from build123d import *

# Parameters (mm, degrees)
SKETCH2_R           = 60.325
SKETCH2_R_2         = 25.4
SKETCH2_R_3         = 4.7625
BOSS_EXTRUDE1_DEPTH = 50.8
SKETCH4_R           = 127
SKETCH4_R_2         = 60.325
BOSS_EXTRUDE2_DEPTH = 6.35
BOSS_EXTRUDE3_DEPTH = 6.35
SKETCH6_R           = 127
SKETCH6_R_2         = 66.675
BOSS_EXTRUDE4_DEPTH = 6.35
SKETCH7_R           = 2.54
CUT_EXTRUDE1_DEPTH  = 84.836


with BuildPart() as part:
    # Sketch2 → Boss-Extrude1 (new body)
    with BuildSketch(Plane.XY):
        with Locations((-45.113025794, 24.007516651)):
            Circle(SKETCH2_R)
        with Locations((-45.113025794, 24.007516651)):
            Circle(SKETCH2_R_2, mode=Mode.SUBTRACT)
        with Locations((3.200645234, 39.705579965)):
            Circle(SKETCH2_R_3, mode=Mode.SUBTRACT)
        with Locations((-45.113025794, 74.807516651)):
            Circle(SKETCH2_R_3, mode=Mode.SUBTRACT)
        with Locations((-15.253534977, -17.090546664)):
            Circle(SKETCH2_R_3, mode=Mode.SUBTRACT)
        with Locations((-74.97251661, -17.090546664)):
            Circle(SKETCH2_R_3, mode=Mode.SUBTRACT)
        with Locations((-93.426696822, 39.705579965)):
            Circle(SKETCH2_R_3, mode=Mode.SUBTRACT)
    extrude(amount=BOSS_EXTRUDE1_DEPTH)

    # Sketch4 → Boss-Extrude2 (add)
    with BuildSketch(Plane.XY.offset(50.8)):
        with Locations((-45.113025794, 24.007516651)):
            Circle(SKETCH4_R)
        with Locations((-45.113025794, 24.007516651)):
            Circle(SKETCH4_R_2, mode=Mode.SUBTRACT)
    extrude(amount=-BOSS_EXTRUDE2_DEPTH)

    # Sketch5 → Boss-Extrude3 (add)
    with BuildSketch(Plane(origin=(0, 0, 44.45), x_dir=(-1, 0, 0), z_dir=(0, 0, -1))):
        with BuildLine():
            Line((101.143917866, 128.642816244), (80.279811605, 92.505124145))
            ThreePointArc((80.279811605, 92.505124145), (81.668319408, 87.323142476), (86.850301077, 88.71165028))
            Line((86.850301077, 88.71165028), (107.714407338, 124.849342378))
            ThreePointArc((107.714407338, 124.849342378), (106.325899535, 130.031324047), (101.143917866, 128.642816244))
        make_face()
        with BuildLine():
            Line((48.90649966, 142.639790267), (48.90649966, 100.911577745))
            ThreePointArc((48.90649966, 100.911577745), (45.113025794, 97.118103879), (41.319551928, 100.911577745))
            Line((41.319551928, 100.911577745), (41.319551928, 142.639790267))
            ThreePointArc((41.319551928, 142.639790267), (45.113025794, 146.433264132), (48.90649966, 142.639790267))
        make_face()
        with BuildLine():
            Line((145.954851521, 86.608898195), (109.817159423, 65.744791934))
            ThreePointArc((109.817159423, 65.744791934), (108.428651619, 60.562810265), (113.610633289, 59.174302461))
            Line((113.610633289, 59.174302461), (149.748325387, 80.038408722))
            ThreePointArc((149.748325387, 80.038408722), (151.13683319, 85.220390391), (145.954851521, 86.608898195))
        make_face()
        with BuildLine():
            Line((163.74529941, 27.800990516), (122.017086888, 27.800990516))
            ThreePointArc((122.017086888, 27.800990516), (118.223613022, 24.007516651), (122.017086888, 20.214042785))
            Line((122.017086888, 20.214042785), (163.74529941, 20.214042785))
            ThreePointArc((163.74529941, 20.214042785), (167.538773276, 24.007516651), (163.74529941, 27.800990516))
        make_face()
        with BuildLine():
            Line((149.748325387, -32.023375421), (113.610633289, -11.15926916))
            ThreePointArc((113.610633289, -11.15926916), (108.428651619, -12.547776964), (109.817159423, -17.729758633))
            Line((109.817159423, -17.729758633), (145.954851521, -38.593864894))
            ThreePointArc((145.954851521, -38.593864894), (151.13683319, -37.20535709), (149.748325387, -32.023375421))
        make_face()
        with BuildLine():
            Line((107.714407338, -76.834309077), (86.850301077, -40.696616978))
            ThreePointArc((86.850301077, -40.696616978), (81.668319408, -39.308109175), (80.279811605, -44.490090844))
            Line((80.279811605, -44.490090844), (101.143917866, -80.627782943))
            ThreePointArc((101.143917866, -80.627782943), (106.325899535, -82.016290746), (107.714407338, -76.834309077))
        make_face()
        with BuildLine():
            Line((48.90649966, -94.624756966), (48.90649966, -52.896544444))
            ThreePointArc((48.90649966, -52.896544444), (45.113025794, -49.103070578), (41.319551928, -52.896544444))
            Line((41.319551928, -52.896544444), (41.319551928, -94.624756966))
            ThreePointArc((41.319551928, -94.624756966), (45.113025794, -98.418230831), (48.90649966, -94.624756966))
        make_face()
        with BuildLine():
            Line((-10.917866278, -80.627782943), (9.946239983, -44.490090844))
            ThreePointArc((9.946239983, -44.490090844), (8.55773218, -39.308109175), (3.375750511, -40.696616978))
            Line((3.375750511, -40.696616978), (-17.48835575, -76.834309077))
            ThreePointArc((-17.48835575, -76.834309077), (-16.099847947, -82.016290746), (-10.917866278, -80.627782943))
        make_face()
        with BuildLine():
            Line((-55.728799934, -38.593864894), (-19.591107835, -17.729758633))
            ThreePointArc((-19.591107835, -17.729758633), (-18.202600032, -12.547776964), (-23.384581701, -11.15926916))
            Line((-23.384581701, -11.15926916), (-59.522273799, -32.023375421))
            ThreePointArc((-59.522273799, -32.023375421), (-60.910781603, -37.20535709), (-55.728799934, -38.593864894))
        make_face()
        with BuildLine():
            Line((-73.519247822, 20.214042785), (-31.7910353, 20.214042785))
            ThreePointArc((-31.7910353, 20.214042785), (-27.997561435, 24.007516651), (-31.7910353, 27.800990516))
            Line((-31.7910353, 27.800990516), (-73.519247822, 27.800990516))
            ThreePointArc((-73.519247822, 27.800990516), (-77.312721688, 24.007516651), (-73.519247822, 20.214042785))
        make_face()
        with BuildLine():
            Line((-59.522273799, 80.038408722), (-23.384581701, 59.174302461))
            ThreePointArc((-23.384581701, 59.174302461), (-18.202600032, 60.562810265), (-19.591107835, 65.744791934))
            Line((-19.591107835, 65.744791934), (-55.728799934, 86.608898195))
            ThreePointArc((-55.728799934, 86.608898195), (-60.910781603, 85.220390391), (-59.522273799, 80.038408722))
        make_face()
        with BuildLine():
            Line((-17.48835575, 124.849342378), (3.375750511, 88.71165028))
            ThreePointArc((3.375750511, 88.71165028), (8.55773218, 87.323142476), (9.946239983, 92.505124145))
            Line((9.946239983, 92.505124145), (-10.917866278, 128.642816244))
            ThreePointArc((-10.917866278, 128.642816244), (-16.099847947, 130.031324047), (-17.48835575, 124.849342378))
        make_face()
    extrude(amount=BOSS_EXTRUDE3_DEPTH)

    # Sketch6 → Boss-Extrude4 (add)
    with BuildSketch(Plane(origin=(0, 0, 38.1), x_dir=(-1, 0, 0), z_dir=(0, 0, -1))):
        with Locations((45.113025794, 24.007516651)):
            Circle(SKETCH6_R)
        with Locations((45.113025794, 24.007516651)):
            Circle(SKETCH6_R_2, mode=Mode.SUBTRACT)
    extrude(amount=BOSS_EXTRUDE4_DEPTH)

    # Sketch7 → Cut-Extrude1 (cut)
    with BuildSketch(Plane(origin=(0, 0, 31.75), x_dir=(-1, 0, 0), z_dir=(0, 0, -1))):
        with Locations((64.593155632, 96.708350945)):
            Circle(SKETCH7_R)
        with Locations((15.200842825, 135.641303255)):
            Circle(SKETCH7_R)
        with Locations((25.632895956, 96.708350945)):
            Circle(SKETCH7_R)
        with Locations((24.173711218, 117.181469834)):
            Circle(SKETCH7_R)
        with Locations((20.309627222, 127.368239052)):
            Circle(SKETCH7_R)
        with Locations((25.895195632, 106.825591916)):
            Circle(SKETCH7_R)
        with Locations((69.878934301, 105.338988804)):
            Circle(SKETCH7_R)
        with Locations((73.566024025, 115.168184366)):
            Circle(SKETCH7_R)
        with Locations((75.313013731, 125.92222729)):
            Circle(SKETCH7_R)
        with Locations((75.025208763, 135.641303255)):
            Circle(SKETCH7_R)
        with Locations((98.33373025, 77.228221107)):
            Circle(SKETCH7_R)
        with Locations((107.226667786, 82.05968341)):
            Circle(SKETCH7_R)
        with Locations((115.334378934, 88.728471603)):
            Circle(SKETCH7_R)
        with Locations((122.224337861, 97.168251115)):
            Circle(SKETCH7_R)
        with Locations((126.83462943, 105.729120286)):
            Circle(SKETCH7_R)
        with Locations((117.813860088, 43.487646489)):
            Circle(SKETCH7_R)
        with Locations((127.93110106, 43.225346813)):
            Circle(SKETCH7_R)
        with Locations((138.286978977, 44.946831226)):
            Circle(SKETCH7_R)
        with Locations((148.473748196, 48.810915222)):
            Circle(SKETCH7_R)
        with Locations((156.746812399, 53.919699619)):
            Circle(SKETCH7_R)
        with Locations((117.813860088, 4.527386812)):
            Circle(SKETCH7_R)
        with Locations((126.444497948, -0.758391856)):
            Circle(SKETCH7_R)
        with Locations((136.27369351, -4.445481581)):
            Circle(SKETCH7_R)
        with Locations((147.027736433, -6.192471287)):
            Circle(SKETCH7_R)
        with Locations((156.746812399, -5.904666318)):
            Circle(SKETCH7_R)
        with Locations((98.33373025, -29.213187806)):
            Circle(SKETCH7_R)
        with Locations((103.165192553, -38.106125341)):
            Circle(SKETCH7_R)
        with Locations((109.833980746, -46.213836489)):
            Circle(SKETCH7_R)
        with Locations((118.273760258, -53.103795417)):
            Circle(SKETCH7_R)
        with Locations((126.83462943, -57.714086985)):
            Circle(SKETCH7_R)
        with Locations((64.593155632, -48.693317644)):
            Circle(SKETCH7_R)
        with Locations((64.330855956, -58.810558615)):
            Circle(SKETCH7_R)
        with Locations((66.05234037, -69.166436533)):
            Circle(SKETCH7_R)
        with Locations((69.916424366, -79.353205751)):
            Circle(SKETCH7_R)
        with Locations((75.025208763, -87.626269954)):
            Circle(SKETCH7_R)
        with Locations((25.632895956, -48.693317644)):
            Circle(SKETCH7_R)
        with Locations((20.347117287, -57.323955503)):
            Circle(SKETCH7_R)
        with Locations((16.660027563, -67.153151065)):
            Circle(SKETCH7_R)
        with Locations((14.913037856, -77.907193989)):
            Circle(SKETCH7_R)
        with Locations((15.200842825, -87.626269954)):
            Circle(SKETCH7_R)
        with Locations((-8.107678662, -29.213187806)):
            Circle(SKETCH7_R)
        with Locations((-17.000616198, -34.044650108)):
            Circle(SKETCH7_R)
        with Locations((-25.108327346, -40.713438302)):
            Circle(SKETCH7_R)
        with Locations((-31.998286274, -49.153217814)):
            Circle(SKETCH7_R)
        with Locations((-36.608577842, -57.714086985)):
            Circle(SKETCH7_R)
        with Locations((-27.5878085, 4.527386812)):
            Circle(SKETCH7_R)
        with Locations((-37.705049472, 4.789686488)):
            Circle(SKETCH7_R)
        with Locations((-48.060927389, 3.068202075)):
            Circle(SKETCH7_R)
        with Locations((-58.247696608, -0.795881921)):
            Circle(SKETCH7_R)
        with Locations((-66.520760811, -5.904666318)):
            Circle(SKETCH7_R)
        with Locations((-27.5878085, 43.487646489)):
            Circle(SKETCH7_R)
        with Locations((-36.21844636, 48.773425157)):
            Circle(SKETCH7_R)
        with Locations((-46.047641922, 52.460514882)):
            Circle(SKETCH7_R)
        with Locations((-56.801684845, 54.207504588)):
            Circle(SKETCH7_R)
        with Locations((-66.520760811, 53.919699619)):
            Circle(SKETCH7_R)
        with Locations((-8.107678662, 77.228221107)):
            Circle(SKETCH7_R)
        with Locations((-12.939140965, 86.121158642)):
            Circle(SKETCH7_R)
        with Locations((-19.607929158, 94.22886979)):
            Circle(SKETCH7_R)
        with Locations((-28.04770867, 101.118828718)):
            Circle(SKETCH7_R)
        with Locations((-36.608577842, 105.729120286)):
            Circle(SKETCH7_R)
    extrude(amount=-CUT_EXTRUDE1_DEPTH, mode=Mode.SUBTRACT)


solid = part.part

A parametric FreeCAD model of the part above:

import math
import FreeCAD as App
import Part
import Sketcher

V = App.Vector
Q = App.Units.Quantity

doc = App.newDocument("Part")
body = doc.addObject("PartDesign::Body", "Body")

# Sketch on XY plane
sketch1 = body.newObject("Sketcher::SketchObject", "Sketch")
sketch1.AttachmentSupport = (doc.getObject("XY_Plane"), [""])
sketch1.MapMode = "FlatFace"
sketch1.addGeometry(Part.Circle(V(-45.113026, 24.007517, 0), V(0, 0, 1), 60.325), False)
sketch1.addGeometry(Part.Circle(V(-74.972517, -17.090547, 0), V(0, 0, 1), 4.7625), False)
sketch1.addGeometry(Part.Circle(V(-45.113026, 24.007517, 0), V(0, 0, 1), 25.4), False)
sketch1.addGeometry(Part.Circle(V(-15.253535, -17.090547, 0), V(0, 0, 1), 4.7625), False)
sketch1.addGeometry(Part.Circle(V(-93.426697, 39.70558, 0), V(0, 0, 1), 4.7625), False)
sketch1.addGeometry(Part.Circle(V(-45.113026, 74.807517, 0), V(0, 0, 1), 4.7625), False)
sketch1.addGeometry(Part.Circle(V(3.200645, 39.70558, 0), V(0, 0, 1), 4.7625), False)
sketch1.addConstraint(Sketcher.Constraint("Coincident", 2, 3, 0, 3))
sketch1.addConstraint(Sketcher.Constraint("Equal", 1, 3))
sketch1.addConstraint(Sketcher.Constraint("Equal", 3, 4))
sketch1.addConstraint(Sketcher.Constraint("Equal", 4, 5))
sketch1.addConstraint(Sketcher.Constraint("Equal", 5, 6))
sketch1.addConstraint(Sketcher.Constraint("Horizontal", 1, 3, 3, 3))
sketch1.addConstraint(Sketcher.Constraint("Horizontal", 4, 3, 6, 3))
sketch1.addConstraint(Sketcher.Constraint("Vertical", 2, 3, 5, 3))
sketch1.addConstraint(Sketcher.Constraint("Diameter", 2, Q("2 in")))
sketch1.addConstraint(Sketcher.Constraint("Diameter", 0, Q("4.75 in")))
sketch1.addConstraint(Sketcher.Constraint("Diameter", 1, Q("0.375 in")))
sketch1.addConstraint(Sketcher.Constraint("DistanceY", 0, 3, 5, 3, Q("2 in")))
sketch1.addConstraint(Sketcher.Constraint("DistanceY", -1, 1, 4, 3, 39.70558))
sketch1.addConstraint(Sketcher.Constraint("DistanceX", 1, 3, 0, 3, 29.859491))
sketch1.addConstraint(Sketcher.Constraint("DistanceX", 0, 3, 3, 3, 29.859491))
sketch1.addConstraint(Sketcher.Constraint("DistanceX", 4, 3, 0, 3, 48.313671))
sketch1.addConstraint(Sketcher.Constraint("DistanceX", 0, 3, 6, 3, 48.313671))
sketch1.addConstraint(Sketcher.Constraint("DistanceX", 0, 3, -1, 1, 45.113026))
sketch1.addConstraint(Sketcher.Constraint("DistanceY", -1, 1, 0, 3, 24.007517))
sketch1.addConstraint(Sketcher.Constraint("DistanceY", 1, 3, -1, 1, 17.090547))
pad1 = body.newObject("PartDesign::Pad", "Pad")
pad1.Profile = sketch1
pad1.Length = Q("2 in")

# Sketch on XY plane
sketch2 = body.newObject("Sketcher::SketchObject", "Sketch001")
sketch2.AttachmentSupport = (doc.getObject("XY_Plane"), [""])
sketch2.MapMode = "FlatFace"
sketch2.AttachmentOffset = App.Placement(V(0, 0, 2 * 25.4), App.Rotation())
sketch2.addGeometry(Part.Circle(V(-45.113026, 24.007517, 0), V(0, 0, 1), 127), False)
sketch2.addGeometry(Part.Circle(V(-45.113026, 24.007517, 0), V(0, 0, 1), 60.325), False)
sketch2.addConstraint(Sketcher.Constraint("Coincident", 1, 3, 0, 3))
sketch2.addConstraint(Sketcher.Constraint("Diameter", 0, Q("10 in")))
sketch2.addConstraint(Sketcher.Constraint("Diameter", 1, Q("4.75 in")))
sketch2.addConstraint(Sketcher.Constraint("DistanceX", 0, 3, -1, 1, 45.113026))
sketch2.addConstraint(Sketcher.Constraint("DistanceY", -1, 1, 0, 3, 24.007517))
pad2 = body.newObject("PartDesign::Pad", "Pad001")
pad2.Profile = sketch2
pad2.Length = Q("0.25 in")
pad2.Reversed = True

# Sketch on XY plane
sketch3 = body.newObject("Sketcher::SketchObject", "Sketch002")
sketch3.AttachmentSupport = (doc.getObject("XY_Plane"), [""])
sketch3.MapMode = "FlatFace"
sketch3.AttachmentOffset = App.Placement(V(0, 0, 1.75 * 25.4), App.Rotation())
sketch3.addGeometry(Part.LineSegment(V(-101.143918, 128.642816, 0), V(-80.279812, 92.505124, 0)), False)
sketch3.addGeometry(Part.ArcOfCircle(Part.Circle(V(-83.565056, 90.608387, 0), V(0, 0, 1), 3.793474), math.radians(-150), math.radians(30)), False)
sketch3.addGeometry(Part.LineSegment(V(-86.850301, 88.71165, 0), V(-107.714407, 124.849342, 0)), False)
sketch3.addGeometry(Part.ArcOfCircle(Part.Circle(V(-104.429163, 126.746079, 0), V(0, 0, 1), 3.793474), math.radians(30), math.radians(210)), False)
sketch3.addGeometry(Part.LineSegment(V(-48.9065, 100.911578, 0), V(-48.9065, 142.63979, 0)), False)
sketch3.addGeometry(Part.ArcOfCircle(Part.Circle(V(-45.113026, 142.63979, 0), V(0, 0, 1), 3.793474), math.radians(0), math.radians(180)), False)
sketch3.addGeometry(Part.LineSegment(V(-41.319552, 142.63979, 0), V(-41.319552, 100.911578, 0)), False)
sketch3.addGeometry(Part.ArcOfCircle(Part.Circle(V(-45.113026, 100.911578, 0), V(0, 0, 1), 3.793474), math.radians(180), math.radians(360)), False)
sketch3.addGeometry(Part.LineSegment(V(-145.954852, 86.608898, 0), V(-109.817159, 65.744792, 0)), False)
sketch3.addGeometry(Part.ArcOfCircle(Part.Circle(V(-111.713896, 62.459547, 0), V(0, 0, 1), 3.793474), math.radians(-120), math.radians(60)), False)
sketch3.addGeometry(Part.LineSegment(V(-113.610633, 59.174302, 0), V(-149.748325, 80.038409, 0)), False)
sketch3.addGeometry(Part.ArcOfCircle(Part.Circle(V(-147.851588, 83.323653, 0), V(0, 0, 1), 3.793474), math.radians(60), math.radians(240)), False)
sketch3.addGeometry(Part.LineSegment(V(-163.745299, 27.800991, 0), V(-122.017087, 27.800991, 0)), False)
sketch3.addGeometry(Part.ArcOfCircle(Part.Circle(V(-122.017087, 24.007517, 0), V(0, 0, 1), 3.793474), math.radians(-90), math.radians(90)), False)
sketch3.addGeometry(Part.LineSegment(V(-122.017087, 20.214043, 0), V(-163.745299, 20.214043, 0)), False)
sketch3.addGeometry(Part.ArcOfCircle(Part.Circle(V(-163.745299, 24.007517, 0), V(0, 0, 1), 3.793474), math.radians(90), math.radians(270)), False)
sketch3.addGeometry(Part.LineSegment(V(-149.748325, -32.023375, 0), V(-113.610633, -11.159269, 0)), False)
sketch3.addGeometry(Part.ArcOfCircle(Part.Circle(V(-111.713896, -14.444514, 0), V(0, 0, 1), 3.793474), math.radians(-60), math.radians(120)), False)
sketch3.addGeometry(Part.LineSegment(V(-109.817159, -17.729759, 0), V(-145.954852, -38.593865, 0)), False)
sketch3.addGeometry(Part.ArcOfCircle(Part.Circle(V(-147.851588, -35.30862, 0), V(0, 0, 1), 3.793474), math.radians(120), math.radians(300)), False)
sketch3.addGeometry(Part.LineSegment(V(-107.714407, -76.834309, 0), V(-86.850301, -40.696617, 0)), False)
sketch3.addGeometry(Part.ArcOfCircle(Part.Circle(V(-83.565056, -42.593354, 0), V(0, 0, 1), 3.793474), math.radians(-30), math.radians(150)), False)
sketch3.addGeometry(Part.LineSegment(V(-80.279812, -44.490091, 0), V(-101.143918, -80.627783, 0)), False)
sketch3.addGeometry(Part.ArcOfCircle(Part.Circle(V(-104.429163, -78.731046, 0), V(0, 0, 1), 3.793474), math.radians(150), math.radians(330)), False)
sketch3.addGeometry(Part.LineSegment(V(-48.9065, -94.624757, 0), V(-48.9065, -52.896544, 0)), False)
sketch3.addGeometry(Part.ArcOfCircle(Part.Circle(V(-45.113026, -52.896544, 0), V(0, 0, 1), 3.793474), math.radians(0), math.radians(180)), False)
sketch3.addGeometry(Part.LineSegment(V(-41.319552, -52.896544, 0), V(-41.319552, -94.624757, 0)), False)
sketch3.addGeometry(Part.ArcOfCircle(Part.Circle(V(-45.113026, -94.624757, 0), V(0, 0, 1), 3.793474), math.radians(-180), math.radians(0)), False)
sketch3.addGeometry(Part.LineSegment(V(10.917866, -80.627783, 0), V(-9.94624, -44.490091, 0)), False)
sketch3.addGeometry(Part.ArcOfCircle(Part.Circle(V(-6.660995, -42.593354, 0), V(0, 0, 1), 3.793474), math.radians(30), math.radians(210)), False)
sketch3.addGeometry(Part.LineSegment(V(-3.375751, -40.696617, 0), V(17.488356, -76.834309, 0)), False)
sketch3.addGeometry(Part.ArcOfCircle(Part.Circle(V(14.203111, -78.731046, 0), V(0, 0, 1), 3.793474), math.radians(-150), math.radians(30)), False)
sketch3.addGeometry(Part.LineSegment(V(55.7288, -38.593865, 0), V(19.591108, -17.729759, 0)), False)
sketch3.addGeometry(Part.ArcOfCircle(Part.Circle(V(21.487845, -14.444514, 0), V(0, 0, 1), 3.793474), math.radians(60), math.radians(240)), False)
sketch3.addGeometry(Part.LineSegment(V(23.384582, -11.159269, 0), V(59.522274, -32.023375, 0)), False)
sketch3.addGeometry(Part.ArcOfCircle(Part.Circle(V(57.625537, -35.30862, 0), V(0, 0, 1), 3.793474), math.radians(-120), math.radians(60)), False)
sketch3.addGeometry(Part.LineSegment(V(73.519248, 20.214043, 0), V(31.791035, 20.214043, 0)), False)
sketch3.addGeometry(Part.ArcOfCircle(Part.Circle(V(31.791035, 24.007517, 0), V(0, 0, 1), 3.793474), math.radians(90), math.radians(270)), False)
sketch3.addGeometry(Part.LineSegment(V(31.791035, 27.800991, 0), V(73.519248, 27.800991, 0)), False)
sketch3.addGeometry(Part.ArcOfCircle(Part.Circle(V(73.519248, 24.007517, 0), V(0, 0, 1), 3.793474), math.radians(-90), math.radians(90)), False)
sketch3.addGeometry(Part.LineSegment(V(59.522274, 80.038409, 0), V(23.384582, 59.174302, 0)), False)
sketch3.addGeometry(Part.ArcOfCircle(Part.Circle(V(21.487845, 62.459547, 0), V(0, 0, 1), 3.793474), math.radians(120), math.radians(300)), False)
sketch3.addGeometry(Part.LineSegment(V(19.591108, 65.744792, 0), V(55.7288, 86.608898, 0)), False)
sketch3.addGeometry(Part.ArcOfCircle(Part.Circle(V(57.625537, 83.323653, 0), V(0, 0, 1), 3.793474), math.radians(-60), math.radians(120)), False)
sketch3.addGeometry(Part.LineSegment(V(17.488356, 124.849342, 0), V(-3.375751, 88.71165, 0)), False)
sketch3.addGeometry(Part.ArcOfCircle(Part.Circle(V(-6.660995, 90.608387, 0), V(0, 0, 1), 3.793474), math.radians(150), math.radians(330)), False)
sketch3.addGeometry(Part.LineSegment(V(-9.94624, 92.505124, 0), V(10.917866, 128.642816, 0)), False)
sketch3.addGeometry(Part.ArcOfCircle(Part.Circle(V(14.203111, 126.746079, 0), V(0, 0, 1), 3.793474), math.radians(-30), math.radians(150)), False)
sketch3.addConstraint(Sketcher.Constraint("Tangent", 0, 2, 1, 2))
sketch3.addConstraint(Sketcher.Constraint("Tangent", 1, 1, 2, 1))
sketch3.addConstraint(Sketcher.Constraint("Tangent", 2, 2, 3, 2))
sketch3.addConstraint(Sketcher.Constraint("Tangent", 3, 1, 0, 1))
sketch3.addConstraint(Sketcher.Constraint("Tangent", 4, 2, 5, 2))
sketch3.addConstraint(Sketcher.Constraint("Tangent", 5, 1, 6, 1))
sketch3.addConstraint(Sketcher.Constraint("Tangent", 6, 2, 7, 2))
sketch3.addConstraint(Sketcher.Constraint("Tangent", 7, 1, 4, 1))
sketch3.addConstraint(Sketcher.Constraint("Tangent", 8, 2, 9, 2))
sketch3.addConstraint(Sketcher.Constraint("Tangent", 9, 1, 10, 1))
sketch3.addConstraint(Sketcher.Constraint("Tangent", 10, 2, 11, 2))
sketch3.addConstraint(Sketcher.Constraint("Tangent", 11, 1, 8, 1))
sketch3.addConstraint(Sketcher.Constraint("Tangent", 12, 2, 13, 2))
sketch3.addConstraint(Sketcher.Constraint("Tangent", 13, 1, 14, 1))
sketch3.addConstraint(Sketcher.Constraint("Tangent", 14, 2, 15, 2))
sketch3.addConstraint(Sketcher.Constraint("Tangent", 15, 1, 12, 1))
sketch3.addConstraint(Sketcher.Constraint("Tangent", 16, 2, 17, 2))
sketch3.addConstraint(Sketcher.Constraint("Tangent", 17, 1, 18, 1))
sketch3.addConstraint(Sketcher.Constraint("Tangent", 18, 2, 19, 2))
sketch3.addConstraint(Sketcher.Constraint("Tangent", 19, 1, 16, 1))
sketch3.addConstraint(Sketcher.Constraint("Tangent", 20, 2, 21, 2))
sketch3.addConstraint(Sketcher.Constraint("Tangent", 21, 1, 22, 1))
sketch3.addConstraint(Sketcher.Constraint("Tangent", 22, 2, 23, 2))
sketch3.addConstraint(Sketcher.Constraint("Tangent", 23, 1, 20, 1))
sketch3.addConstraint(Sketcher.Constraint("Tangent", 24, 2, 25, 2))
sketch3.addConstraint(Sketcher.Constraint("Tangent", 25, 1, 26, 1))
sketch3.addConstraint(Sketcher.Constraint("Tangent", 26, 2, 27, 2))
sketch3.addConstraint(Sketcher.Constraint("Tangent", 27, 1, 24, 1))
sketch3.addConstraint(Sketcher.Constraint("Tangent", 28, 2, 29, 2))
sketch3.addConstraint(Sketcher.Constraint("Tangent", 29, 1, 30, 1))
sketch3.addConstraint(Sketcher.Constraint("Tangent", 30, 2, 31, 2))
sketch3.addConstraint(Sketcher.Constraint("Tangent", 31, 1, 28, 1))
sketch3.addConstraint(Sketcher.Constraint("Tangent", 32, 2, 33, 2))
sketch3.addConstraint(Sketcher.Constraint("Tangent", 33, 1, 34, 1))
sketch3.addConstraint(Sketcher.Constraint("Tangent", 34, 2, 35, 2))
sketch3.addConstraint(Sketcher.Constraint("Tangent", 35, 1, 32, 1))
sketch3.addConstraint(Sketcher.Constraint("Tangent", 36, 2, 37, 2))
sketch3.addConstraint(Sketcher.Constraint("Tangent", 37, 1, 38, 1))
sketch3.addConstraint(Sketcher.Constraint("Tangent", 38, 2, 39, 2))
sketch3.addConstraint(Sketcher.Constraint("Tangent", 39, 1, 36, 1))
sketch3.addConstraint(Sketcher.Constraint("Tangent", 40, 2, 41, 2))
sketch3.addConstraint(Sketcher.Constraint("Tangent", 41, 1, 42, 1))
sketch3.addConstraint(Sketcher.Constraint("Tangent", 42, 2, 43, 2))
sketch3.addConstraint(Sketcher.Constraint("Tangent", 43, 1, 40, 1))
sketch3.addConstraint(Sketcher.Constraint("Tangent", 44, 2, 45, 2))
sketch3.addConstraint(Sketcher.Constraint("Tangent", 45, 1, 46, 1))
sketch3.addConstraint(Sketcher.Constraint("Tangent", 46, 2, 47, 2))
sketch3.addConstraint(Sketcher.Constraint("Tangent", 47, 1, 44, 1))
sketch3.addConstraint(Sketcher.Constraint("Vertical", 4))
sketch3.addConstraint(Sketcher.Constraint("Vertical", 6))
sketch3.addConstraint(Sketcher.Constraint("Horizontal", 12))
sketch3.addConstraint(Sketcher.Constraint("Horizontal", 14))
sketch3.addConstraint(Sketcher.Constraint("Vertical", 24))
sketch3.addConstraint(Sketcher.Constraint("Vertical", 26))
sketch3.addConstraint(Sketcher.Constraint("Horizontal", 36))
sketch3.addConstraint(Sketcher.Constraint("Horizontal", 38))
sketch3.addConstraint(Sketcher.Constraint("Equal", 1, 3))
sketch3.addConstraint(Sketcher.Constraint("Equal", 3, 5))
sketch3.addConstraint(Sketcher.Constraint("Equal", 7, 9))
sketch3.addConstraint(Sketcher.Constraint("Equal", 9, 11))
sketch3.addConstraint(Sketcher.Constraint("Equal", 11, 13))
sketch3.addConstraint(Sketcher.Constraint("Equal", 15, 17))
sketch3.addConstraint(Sketcher.Constraint("Equal", 17, 19))
sketch3.addConstraint(Sketcher.Constraint("Equal", 19, 21))
sketch3.addConstraint(Sketcher.Constraint("Equal", 21, 23))
sketch3.addConstraint(Sketcher.Constraint("Equal", 23, 25))
sketch3.addConstraint(Sketcher.Constraint("Equal", 27, 29))
sketch3.addConstraint(Sketcher.Constraint("Equal", 29, 31))
sketch3.addConstraint(Sketcher.Constraint("Equal", 31, 33))
sketch3.addConstraint(Sketcher.Constraint("Equal", 33, 35))
sketch3.addConstraint(Sketcher.Constraint("Equal", 35, 37))
sketch3.addConstraint(Sketcher.Constraint("Equal", 39, 41))
sketch3.addConstraint(Sketcher.Constraint("Equal", 41, 43))
sketch3.addConstraint(Sketcher.Constraint("Equal", 43, 45))
sketch3.addConstraint(Sketcher.Constraint("Equal", 45, 47))
sketch3.addConstraint(Sketcher.Constraint("Perpendicular", 2, 16))
sketch3.addConstraint(Sketcher.Constraint("Perpendicular", 10, 20))
sketch3.addConstraint(Sketcher.Constraint("Perpendicular", 18, 28))
sketch3.addConstraint(Sketcher.Constraint("Perpendicular", 22, 32))
sketch3.addConstraint(Sketcher.Constraint("Perpendicular", 30, 40))
sketch3.addConstraint(Sketcher.Constraint("Perpendicular", 34, 44))
sketch3.addConstraint(Sketcher.Constraint("Horizontal", 21, 3, 29, 3))
sketch3.addConstraint(Sketcher.Constraint("Horizontal", 23, 3, 31, 3))
sketch3.addConstraint(Sketcher.Constraint("Horizontal", 17, 3, 33, 3))
sketch3.addConstraint(Sketcher.Constraint("Horizontal", 19, 3, 35, 3))
sketch3.addConstraint(Sketcher.Constraint("Horizontal", 15, 3, 37, 3))
sketch3.addConstraint(Sketcher.Constraint("Horizontal", 9, 3, 41, 3))
sketch3.addConstraint(Sketcher.Constraint("Horizontal", 11, 3, 43, 3))
sketch3.addConstraint(Sketcher.Constraint("Horizontal", 1, 3, 45, 3))
sketch3.addConstraint(Sketcher.Constraint("Horizontal", 3, 3, 47, 3))
sketch3.addConstraint(Sketcher.Constraint("Horizontal", 21, 1, 28, 2))
sketch3.addConstraint(Sketcher.Constraint("Vertical", 9, 3, 17, 3))
sketch3.addConstraint(Sketcher.Constraint("Vertical", 11, 3, 19, 3))
sketch3.addConstraint(Sketcher.Constraint("Vertical", 1, 3, 21, 3))
sketch3.addConstraint(Sketcher.Constraint("Vertical", 3, 3, 23, 3))
sketch3.addConstraint(Sketcher.Constraint("Vertical", 7, 3, 25, 3))
sketch3.addConstraint(Sketcher.Constraint("Vertical", 33, 3, 41, 3))
sketch3.addConstraint(Sketcher.Constraint("Vertical", 29, 3, 45, 3))
sketch3.addConstraint(Sketcher.Constraint("Equal", 14, 36))
sketch3.addConstraint(Sketcher.Constraint("Equal", 38, 4))
sketch3.addConstraint(Sketcher.Constraint("Equal", 6, 24))
sketch3.addConstraint(Sketcher.Constraint("Equal", 2, 8))
sketch3.addConstraint(Sketcher.Constraint("Angle", 0, Q("-60 deg")))
sketch3.addConstraint(Sketcher.Constraint("Radius", 1, 3.793474))
sketch3.addConstraint(Sketcher.Constraint("DistanceX", 15, 3, -1, 1, 163.745299))
sketch3.addConstraint(Sketcher.Constraint("DistanceX", 1, 1, -1, 1, 86.850301))
sketch3.addConstraint(Sketcher.Constraint("DistanceX", 4, 2, -1, 1, 48.9065))
sketch3.addConstraint(Sketcher.Constraint("DistanceY", -1, 1, 11, 1, 86.608898))
sketch3.addConstraint(Sketcher.Constraint("DistanceX", -1, 1, 35, 1, 55.7288))
sketch3.addConstraint(Sketcher.Constraint("DistanceX", 12, 1, 12, 2, 41.728213))
sketch3.addConstraint(Sketcher.Constraint("DistanceY", -1, 1, 3, 3, 126.746079))
sketch3.addConstraint(Sketcher.Constraint("DistanceY", -1, 1, 5, 3, 142.63979))
sketch3.addConstraint(Sketcher.Constraint("DistanceX", 11, 3, -1, 1, 147.851588))
sketch3.addConstraint(Sketcher.Constraint("DistanceY", 19, 3, -1, 1, 35.30862))
sketch3.addConstraint(Sketcher.Constraint("DistanceX", -1, 1, 31, 3, 14.203111))
sketch3.addConstraint(Sketcher.Constraint("DistanceY", -1, 1, 1, 1, 88.71165))
sketch3.addConstraint(Sketcher.Constraint("DistanceY", -1, 1, 12, 2, 27.800991))
sketch3.addConstraint(Sketcher.Constraint("DistanceY", 21, 1, -1, 1, 44.490091))
sketch3.addConstraint(Sketcher.Constraint("DistanceY", 25, 3, -1, 1, 52.896544))
sketch3.addConstraint(Sketcher.Constraint("DistanceX", -1, 1, 37, 3, 31.791035))
pad3 = body.newObject("PartDesign::Pad", "Pad002")
pad3.Profile = sketch3
pad3.Length = Q("0.25 in")
pad3.Reversed = True

# Sketch on XY plane
sketch4 = body.newObject("Sketcher::SketchObject", "Sketch003")
sketch4.AttachmentSupport = (doc.getObject("XY_Plane"), [""])
sketch4.MapMode = "FlatFace"
sketch4.AttachmentOffset = App.Placement(V(0, 0, 1.5 * 25.4), App.Rotation())
sketch4.addGeometry(Part.Circle(V(-45.113026, 24.007517, 0), V(0, 0, 1), 127), False)
sketch4.addGeometry(Part.Circle(V(-45.113026, 24.007517, 0), V(0, 0, 1), 66.675), False)
sketch4.addConstraint(Sketcher.Constraint("Coincident", 1, 3, 0, 3))
sketch4.addConstraint(Sketcher.Constraint("Diameter", 0, Q("10 in")))
sketch4.addConstraint(Sketcher.Constraint("Diameter", 1, Q("5.25 in")))
sketch4.addConstraint(Sketcher.Constraint("DistanceX", 0, 3, -1, 1, 45.113026))
sketch4.addConstraint(Sketcher.Constraint("DistanceY", -1, 1, 0, 3, 24.007517))
pad4 = body.newObject("PartDesign::Pad", "Pad003")
pad4.Profile = sketch4
pad4.Length = Q("0.25 in")
pad4.Reversed = True

# Sketch on XY plane
sketch5 = body.newObject("Sketcher::SketchObject", "Sketch004")
sketch5.AttachmentSupport = (doc.getObject("XY_Plane"), [""])
sketch5.MapMode = "FlatFace"
sketch5.AttachmentOffset = App.Placement(V(0, 0, 1.25 * 25.4), App.Rotation())
sketch5.addGeometry(Part.Circle(V(-64.593156, 96.708351, 0), V(0, 0, 1), 2.54), False)
sketch5.addGeometry(Part.Circle(V(-15.200843, 135.641303, 0), V(0, 0, 1), 2.54), False)
sketch5.addGeometry(Part.Circle(V(-25.632896, 96.708351, 0), V(0, 0, 1), 2.54), False)
sketch5.addGeometry(Part.Circle(V(-24.173711, 117.18147, 0), V(0, 0, 1), 2.54), False)
sketch5.addGeometry(Part.Circle(V(-20.309627, 127.368239, 0), V(0, 0, 1), 2.54), False)
sketch5.addGeometry(Part.Circle(V(-25.895196, 106.825592, 0), V(0, 0, 1), 2.54), False)
sketch5.addGeometry(Part.Circle(V(-69.878934, 105.338989, 0), V(0, 0, 1), 2.54), False)
sketch5.addGeometry(Part.Circle(V(-73.566024, 115.168184, 0), V(0, 0, 1), 2.54), False)
sketch5.addGeometry(Part.Circle(V(-75.313014, 125.922227, 0), V(0, 0, 1), 2.54), False)
sketch5.addGeometry(Part.Circle(V(-75.025209, 135.641303, 0), V(0, 0, 1), 2.54), False)
sketch5.addGeometry(Part.Circle(V(-98.33373, 77.228221, 0), V(0, 0, 1), 2.54), False)
sketch5.addGeometry(Part.Circle(V(-107.226668, 82.059683, 0), V(0, 0, 1), 2.54), False)
sketch5.addGeometry(Part.Circle(V(-115.334379, 88.728472, 0), V(0, 0, 1), 2.54), False)
sketch5.addGeometry(Part.Circle(V(-122.224338, 97.168251, 0), V(0, 0, 1), 2.54), False)
sketch5.addGeometry(Part.Circle(V(-126.834629, 105.72912, 0), V(0, 0, 1), 2.54), False)
sketch5.addGeometry(Part.Circle(V(-117.81386, 43.487646, 0), V(0, 0, 1), 2.54), False)
sketch5.addGeometry(Part.Circle(V(-127.931101, 43.225347, 0), V(0, 0, 1), 2.54), False)
sketch5.addGeometry(Part.Circle(V(-138.286979, 44.946831, 0), V(0, 0, 1), 2.54), False)
sketch5.addGeometry(Part.Circle(V(-148.473748, 48.810915, 0), V(0, 0, 1), 2.54), False)
sketch5.addGeometry(Part.Circle(V(-156.746812, 53.9197, 0), V(0, 0, 1), 2.54), False)
sketch5.addGeometry(Part.Circle(V(-117.81386, 4.527387, 0), V(0, 0, 1), 2.54), False)
sketch5.addGeometry(Part.Circle(V(-126.444498, -0.758392, 0), V(0, 0, 1), 2.54), False)
sketch5.addGeometry(Part.Circle(V(-136.273694, -4.445482, 0), V(0, 0, 1), 2.54), False)
sketch5.addGeometry(Part.Circle(V(-147.027736, -6.192471, 0), V(0, 0, 1), 2.54), False)
sketch5.addGeometry(Part.Circle(V(-156.746812, -5.904666, 0), V(0, 0, 1), 2.54), False)
sketch5.addGeometry(Part.Circle(V(-98.33373, -29.213188, 0), V(0, 0, 1), 2.54), False)
sketch5.addGeometry(Part.Circle(V(-103.165193, -38.106125, 0), V(0, 0, 1), 2.54), False)
sketch5.addGeometry(Part.Circle(V(-109.833981, -46.213836, 0), V(0, 0, 1), 2.54), False)
sketch5.addGeometry(Part.Circle(V(-118.27376, -53.103795, 0), V(0, 0, 1), 2.54), False)
sketch5.addGeometry(Part.Circle(V(-126.834629, -57.714087, 0), V(0, 0, 1), 2.54), False)
sketch5.addGeometry(Part.Circle(V(-64.593156, -48.693318, 0), V(0, 0, 1), 2.54), False)
sketch5.addGeometry(Part.Circle(V(-64.330856, -58.810559, 0), V(0, 0, 1), 2.54), False)
sketch5.addGeometry(Part.Circle(V(-66.05234, -69.166437, 0), V(0, 0, 1), 2.54), False)
sketch5.addGeometry(Part.Circle(V(-69.916424, -79.353206, 0), V(0, 0, 1), 2.54), False)
sketch5.addGeometry(Part.Circle(V(-75.025209, -87.62627, 0), V(0, 0, 1), 2.54), False)
sketch5.addGeometry(Part.Circle(V(-25.632896, -48.693318, 0), V(0, 0, 1), 2.54), False)
sketch5.addGeometry(Part.Circle(V(-20.347117, -57.323956, 0), V(0, 0, 1), 2.54), False)
sketch5.addGeometry(Part.Circle(V(-16.660028, -67.153151, 0), V(0, 0, 1), 2.54), False)
sketch5.addGeometry(Part.Circle(V(-14.913038, -77.907194, 0), V(0, 0, 1), 2.54), False)
sketch5.addGeometry(Part.Circle(V(-15.200843, -87.62627, 0), V(0, 0, 1), 2.54), False)
sketch5.addGeometry(Part.Circle(V(8.107679, -29.213188, 0), V(0, 0, 1), 2.54), False)
sketch5.addGeometry(Part.Circle(V(17.000616, -34.04465, 0), V(0, 0, 1), 2.54), False)
sketch5.addGeometry(Part.Circle(V(25.108327, -40.713438, 0), V(0, 0, 1), 2.54), False)
sketch5.addGeometry(Part.Circle(V(31.998286, -49.153218, 0), V(0, 0, 1), 2.54), False)
sketch5.addGeometry(Part.Circle(V(36.608578, -57.714087, 0), V(0, 0, 1), 2.54), False)
sketch5.addGeometry(Part.Circle(V(27.587809, 4.527387, 0), V(0, 0, 1), 2.54), False)
sketch5.addGeometry(Part.Circle(V(37.705049, 4.789686, 0), V(0, 0, 1), 2.54), False)
sketch5.addGeometry(Part.Circle(V(48.060927, 3.068202, 0), V(0, 0, 1), 2.54), False)
sketch5.addGeometry(Part.Circle(V(58.247697, -0.795882, 0), V(0, 0, 1), 2.54), False)
sketch5.addGeometry(Part.Circle(V(66.520761, -5.904666, 0), V(0, 0, 1), 2.54), False)
sketch5.addGeometry(Part.Circle(V(27.587809, 43.487646, 0), V(0, 0, 1), 2.54), False)
sketch5.addGeometry(Part.Circle(V(36.218446, 48.773425, 0), V(0, 0, 1), 2.54), False)
sketch5.addGeometry(Part.Circle(V(46.047642, 52.460515, 0), V(0, 0, 1), 2.54), False)
sketch5.addGeometry(Part.Circle(V(56.801685, 54.207505, 0), V(0, 0, 1), 2.54), False)
sketch5.addGeometry(Part.Circle(V(66.520761, 53.9197, 0), V(0, 0, 1), 2.54), False)
sketch5.addGeometry(Part.Circle(V(8.107679, 77.228221, 0), V(0, 0, 1), 2.54), False)
sketch5.addGeometry(Part.Circle(V(12.939141, 86.121159, 0), V(0, 0, 1), 2.54), False)
sketch5.addGeometry(Part.Circle(V(19.607929, 94.22887, 0), V(0, 0, 1), 2.54), False)
sketch5.addGeometry(Part.Circle(V(28.047709, 101.118829, 0), V(0, 0, 1), 2.54), False)
sketch5.addGeometry(Part.Circle(V(36.608578, 105.72912, 0), V(0, 0, 1), 2.54), False)
sketch5.addConstraint(Sketcher.Constraint("Equal", 0, 1))
sketch5.addConstraint(Sketcher.Constraint("Equal", 1, 2))
sketch5.addConstraint(Sketcher.Constraint("Equal", 2, 3))
sketch5.addConstraint(Sketcher.Constraint("Equal", 3, 4))
sketch5.addConstraint(Sketcher.Constraint("Equal", 4, 5))
sketch5.addConstraint(Sketcher.Constraint("Equal", 5, 6))
sketch5.addConstraint(Sketcher.Constraint("Equal", 6, 7))
sketch5.addConstraint(Sketcher.Constraint("Equal", 7, 8))
sketch5.addConstraint(Sketcher.Constraint("Equal", 8, 9))
sketch5.addConstraint(Sketcher.Constraint("Equal", 9, 10))
sketch5.addConstraint(Sketcher.Constraint("Equal", 10, 11))
sketch5.addConstraint(Sketcher.Constraint("Equal", 11, 12))
sketch5.addConstraint(Sketcher.Constraint("Equal", 12, 13))
sketch5.addConstraint(Sketcher.Constraint("Equal", 13, 14))
sketch5.addConstraint(Sketcher.Constraint("Equal", 14, 15))
sketch5.addConstraint(Sketcher.Constraint("Equal", 15, 16))
sketch5.addConstraint(Sketcher.Constraint("Equal", 16, 17))
sketch5.addConstraint(Sketcher.Constraint("Equal", 17, 18))
sketch5.addConstraint(Sketcher.Constraint("Equal", 18, 19))
sketch5.addConstraint(Sketcher.Constraint("Equal", 19, 20))
sketch5.addConstraint(Sketcher.Constraint("Equal", 20, 21))
sketch5.addConstraint(Sketcher.Constraint("Equal", 21, 22))
sketch5.addConstraint(Sketcher.Constraint("Equal", 22, 23))
sketch5.addConstraint(Sketcher.Constraint("Equal", 23, 24))
sketch5.addConstraint(Sketcher.Constraint("Equal", 24, 25))
sketch5.addConstraint(Sketcher.Constraint("Equal", 25, 26))
sketch5.addConstraint(Sketcher.Constraint("Equal", 26, 27))
sketch5.addConstraint(Sketcher.Constraint("Equal", 27, 28))
sketch5.addConstraint(Sketcher.Constraint("Equal", 28, 29))
sketch5.addConstraint(Sketcher.Constraint("Equal", 29, 30))
sketch5.addConstraint(Sketcher.Constraint("Equal", 30, 31))
sketch5.addConstraint(Sketcher.Constraint("Equal", 31, 32))
sketch5.addConstraint(Sketcher.Constraint("Equal", 32, 33))
sketch5.addConstraint(Sketcher.Constraint("Equal", 33, 34))
sketch5.addConstraint(Sketcher.Constraint("Equal", 34, 35))
sketch5.addConstraint(Sketcher.Constraint("Equal", 35, 36))
sketch5.addConstraint(Sketcher.Constraint("Equal", 36, 37))
sketch5.addConstraint(Sketcher.Constraint("Equal", 37, 38))
sketch5.addConstraint(Sketcher.Constraint("Equal", 38, 39))
sketch5.addConstraint(Sketcher.Constraint("Equal", 39, 40))
sketch5.addConstraint(Sketcher.Constraint("Equal", 40, 41))
sketch5.addConstraint(Sketcher.Constraint("Equal", 41, 42))
sketch5.addConstraint(Sketcher.Constraint("Equal", 42, 43))
sketch5.addConstraint(Sketcher.Constraint("Equal", 43, 44))
sketch5.addConstraint(Sketcher.Constraint("Equal", 44, 45))
sketch5.addConstraint(Sketcher.Constraint("Equal", 45, 46))
sketch5.addConstraint(Sketcher.Constraint("Equal", 46, 47))
sketch5.addConstraint(Sketcher.Constraint("Equal", 47, 48))
sketch5.addConstraint(Sketcher.Constraint("Equal", 48, 49))
sketch5.addConstraint(Sketcher.Constraint("Equal", 49, 50))
sketch5.addConstraint(Sketcher.Constraint("Equal", 50, 51))
sketch5.addConstraint(Sketcher.Constraint("Equal", 51, 52))
sketch5.addConstraint(Sketcher.Constraint("Equal", 52, 53))
sketch5.addConstraint(Sketcher.Constraint("Equal", 53, 54))
sketch5.addConstraint(Sketcher.Constraint("Equal", 54, 55))
sketch5.addConstraint(Sketcher.Constraint("Equal", 55, 56))
sketch5.addConstraint(Sketcher.Constraint("Equal", 56, 57))
sketch5.addConstraint(Sketcher.Constraint("Equal", 57, 58))
sketch5.addConstraint(Sketcher.Constraint("Equal", 58, 59))
sketch5.addConstraint(Sketcher.Constraint("Horizontal", 0, 3, 2, 3))
sketch5.addConstraint(Sketcher.Constraint("Horizontal", 1, 3, 9, 3))
sketch5.addConstraint(Sketcher.Constraint("Horizontal", 30, 3, 35, 3))
sketch5.addConstraint(Sketcher.Constraint("Horizontal", 34, 3, 39, 3))
sketch5.addConstraint(Sketcher.Constraint("Horizontal", 25, 3, 40, 3))
sketch5.addConstraint(Sketcher.Constraint("Horizontal", 29, 3, 44, 3))
sketch5.addConstraint(Sketcher.Constraint("Horizontal", 20, 3, 45, 3))
sketch5.addConstraint(Sketcher.Constraint("Horizontal", 24, 3, 49, 3))
sketch5.addConstraint(Sketcher.Constraint("Horizontal", 15, 3, 50, 3))
sketch5.addConstraint(Sketcher.Constraint("Horizontal", 19, 3, 54, 3))
sketch5.addConstraint(Sketcher.Constraint("Horizontal", 10, 3, 55, 3))
sketch5.addConstraint(Sketcher.Constraint("Horizontal", 14, 3, 59, 3))
sketch5.addConstraint(Sketcher.Constraint("Vertical", 15, 3, 20, 3))
sketch5.addConstraint(Sketcher.Constraint("Vertical", 19, 3, 24, 3))
sketch5.addConstraint(Sketcher.Constraint("Vertical", 10, 3, 25, 3))
sketch5.addConstraint(Sketcher.Constraint("Vertical", 14, 3, 29, 3))
sketch5.addConstraint(Sketcher.Constraint("Vertical", 0, 3, 30, 3))
sketch5.addConstraint(Sketcher.Constraint("Vertical", 9, 3, 34, 3))
sketch5.addConstraint(Sketcher.Constraint("Vertical", 2, 3, 35, 3))
sketch5.addConstraint(Sketcher.Constraint("Vertical", 1, 3, 39, 3))
sketch5.addConstraint(Sketcher.Constraint("Vertical", 45, 3, 50, 3))
sketch5.addConstraint(Sketcher.Constraint("Vertical", 49, 3, 54, 3))
sketch5.addConstraint(Sketcher.Constraint("Vertical", 40, 3, 55, 3))
sketch5.addConstraint(Sketcher.Constraint("Vertical", 44, 3, 59, 3))
sketch5.addConstraint(Sketcher.Constraint("Diameter", 0, Q("0.2 in")))
sketch5.addConstraint(Sketcher.Constraint("DistanceX", 7, 3, -1, 1, Q("2.8963002 in")))
sketch5.addConstraint(Sketcher.Constraint("DistanceX", -1, 1, 40, 3, Q("0.3191999 in")))
sketch5.addConstraint(Sketcher.Constraint("DistanceX", 16, 3, -1, 1, 127.931101))
sketch5.addConstraint(Sketcher.Constraint("DistanceY", -1, 1, 19, 3, 53.9197))
sketch5.addConstraint(Sketcher.Constraint("DistanceX", 5, 3, 2, 3, 0.2623))
sketch5.addConstraint(Sketcher.Constraint("DistanceY", 11, 3, 7, 3, 33.108501))
sketch5.addConstraint(Sketcher.Constraint("DistanceX", 14, 3, 10, 3, 28.500899))
sketch5.addConstraint(Sketcher.Constraint("DistanceY", 10, 3, 14, 3, 28.500899))
sketch5.addConstraint(Sketcher.Constraint("DistanceY", 16, 3, 15, 3, 0.2623))
sketch5.addConstraint(Sketcher.Constraint("DistanceX", 17, 3, 12, 3, 22.9526))
sketch5.addConstraint(Sketcher.Constraint("DistanceX", 22, 3, 26, 3, 33.108501))
sketch5.addConstraint(Sketcher.Constraint("DistanceY", 29, 3, 25, 3, 28.500899))
sketch5.addConstraint(Sketcher.Constraint("DistanceX", 30, 3, 31, 3, 0.2623))
sketch5.addConstraint(Sketcher.Constraint("DistanceY", 32, 3, 27, 3, 22.9526))
sketch5.addConstraint(Sketcher.Constraint("DistanceY", 37, 3, 41, 3, 33.108501))
sketch5.addConstraint(Sketcher.Constraint("DistanceX", 40, 3, 44, 3, 28.500899))
sketch5.addConstraint(Sketcher.Constraint("DistanceY", 45, 3, 46, 3, 0.2623))
sketch5.addConstraint(Sketcher.Constraint("DistanceX", 42, 3, 47, 3, 22.9526))
sketch5.addConstraint(Sketcher.Constraint("DistanceY", -1, 1, 0, 3, 96.708351))
sketch5.addConstraint(Sketcher.Constraint("DistanceX", 3, 3, -1, 1, 24.173711))
sketch5.addConstraint(Sketcher.Constraint("DistanceY", -1, 1, 3, 3, 117.18147))
sketch5.addConstraint(Sketcher.Constraint("DistanceY", -1, 1, 4, 3, 127.368239))
sketch5.addConstraint(Sketcher.Constraint("DistanceY", -1, 1, 5, 3, 106.825592))
sketch5.addConstraint(Sketcher.Constraint("DistanceY", -1, 1, 6, 3, 105.338989))
sketch5.addConstraint(Sketcher.Constraint("DistanceX", 9, 3, -1, 1, 75.025209))
sketch5.addConstraint(Sketcher.Constraint("DistanceX", 10, 3, -1, 1, 98.33373))
sketch5.addConstraint(Sketcher.Constraint("DistanceY", -1, 1, 10, 3, 77.228221))
sketch5.addConstraint(Sketcher.Constraint("DistanceX", 12, 3, -1, 1, 115.334379))
sketch5.addConstraint(Sketcher.Constraint("DistanceY", -1, 1, 12, 3, 88.728472))
sketch5.addConstraint(Sketcher.Constraint("DistanceY", -1, 1, 13, 3, 97.168251))
sketch5.addConstraint(Sketcher.Constraint("DistanceX", 15, 3, -1, 1, 117.81386))
sketch5.addConstraint(Sketcher.Constraint("DistanceY", -1, 1, 17, 3, 44.946831))
sketch5.addConstraint(Sketcher.Constraint("DistanceX", 18, 3, -1, 1, 148.473748))
sketch5.addConstraint(Sketcher.Constraint("DistanceY", 21, 3, -1, 1, 0.758392))
sketch5.addConstraint(Sketcher.Constraint("DistanceY", 22, 3, -1, 1, 4.445482))
sketch5.addConstraint(Sketcher.Constraint("DistanceY", 23, 3, -1, 1, 6.192471))
sketch5.addConstraint(Sketcher.Constraint("DistanceX", 27, 3, -1, 1, 109.833981))
sketch5.addConstraint(Sketcher.Constraint("DistanceX", 28, 3, -1, 1, 118.27376))
sketch5.addConstraint(Sketcher.Constraint("DistanceY", 31, 3, -1, 1, 58.810559))
sketch5.addConstraint(Sketcher.Constraint("DistanceX", 32, 3, -1, 1, 66.05234))
sketch5.addConstraint(Sketcher.Constraint("DistanceY", 34, 3, -1, 1, 87.62627))
sketch5.addConstraint(Sketcher.Constraint("DistanceY", 37, 3, -1, 1, 67.153151))
sketch5.addConstraint(Sketcher.Constraint("DistanceY", 42, 3, -1, 1, 40.713438))
sketch5.addConstraint(Sketcher.Constraint("DistanceX", -1, 1, 45, 3, 27.587809))
sketch5.addConstraint(Sketcher.Constraint("DistanceX", -1, 1, 46, 3, 37.705049))
sketch5.addConstraint(Sketcher.Constraint("DistanceY", 48, 3, -1, 1, 0.795882))
sketch5.addConstraint(Sketcher.Constraint("DistanceX", -1, 1, 49, 3, 66.520761))
sketch5.addConstraint(Sketcher.Constraint("DistanceX", -1, 1, 52, 3, 46.047642))
sketch5.addConstraint(Sketcher.Constraint("DistanceX", -1, 1, 56, 3, 12.939141))
sketch5.addConstraint(Sketcher.Constraint("DistanceY", -1, 1, 56, 3, 86.121159))
sketch5.addConstraint(Sketcher.Constraint("DistanceX", -1, 1, 57, 3, 19.607929))
sketch5.addConstraint(Sketcher.Constraint("DistanceY", -1, 1, 57, 3, 94.22887))
sketch5.addConstraint(Sketcher.Constraint("DistanceX", -1, 1, 58, 3, 28.047709))
sketch5.addConstraint(Sketcher.Constraint("DistanceY", -1, 1, 58, 3, 101.118829))
sketch5.addConstraint(Sketcher.Constraint("DistanceX", 0, 3, 2, 3, 38.96026))
sketch5.addConstraint(Sketcher.Constraint("DistanceX", 3, 3, 1, 3, 8.972868))
sketch5.addConstraint(Sketcher.Constraint("DistanceX", 2, 3, 4, 3, 5.323269))
sketch5.addConstraint(Sketcher.Constraint("DistanceY", 5, 3, 1, 3, 28.815711))
sketch5.addConstraint(Sketcher.Constraint("DistanceX", 6, 3, 0, 3, 5.285779))
sketch5.addConstraint(Sketcher.Constraint("DistanceX", 7, 3, 6, 3, 3.68709))
sketch5.addConstraint(Sketcher.Constraint("DistanceX", 8, 3, 7, 3, 1.74699))
sketch5.addConstraint(Sketcher.Constraint("DistanceY", 6, 3, 8, 3, 20.583238))
sketch5.addConstraint(Sketcher.Constraint("DistanceY", 7, 3, 9, 3, 20.473119))
sketch5.addConstraint(Sketcher.Constraint("DistanceX", 12, 3, 11, 3, 8.107711))
sketch5.addConstraint(Sketcher.Constraint("DistanceX", 13, 3, 12, 3, 6.889959))
sketch5.addConstraint(Sketcher.Constraint("DistanceY", 16, 3, 18, 3, 5.585568))
sketch5.addConstraint(Sketcher.Constraint("DistanceY", 18, 3, 11, 3, 33.248768))
sketch5.addConstraint(Sketcher.Constraint("DistanceX", 19, 3, 16, 3, 28.815711))
sketch5.addConstraint(Sketcher.Constraint("DistanceY", 20, 3, 15, 3, 38.96026))
sketch5.addConstraint(Sketcher.Constraint("DistanceX", 17, 3, 21, 3, 11.842481))
sketch5.addConstraint(Sketcher.Constraint("DistanceX", 23, 3, 21, 3, 20.583238))
sketch5.addConstraint(Sketcher.Constraint("DistanceX", 24, 3, 22, 3, 20.473119))
sketch5.addConstraint(Sketcher.Constraint("DistanceY", 25, 3, 24, 3, 23.308521))
sketch5.addConstraint(Sketcher.Constraint("DistanceY", 27, 3, 26, 3, 8.107711))
sketch5.addConstraint(Sketcher.Constraint("DistanceY", 27, 3, 25, 3, 17.000649))
sketch5.addConstraint(Sketcher.Constraint("DistanceY", 28, 3, 27, 3, 6.889959))
sketch5.addConstraint(Sketcher.Constraint("DistanceY", 30, 3, 25, 3, 19.48013))
sketch5.addConstraint(Sketcher.Constraint("DistanceY", 31, 3, 30, 3, 10.117241))
sketch5.addConstraint(Sketcher.Constraint("DistanceY", 33, 3, 32, 3, 10.186769))
sketch5.addConstraint(Sketcher.Constraint("DistanceX", 33, 3, 31, 3, 5.585568))
sketch5.addConstraint(Sketcher.Constraint("DistanceX", 35, 3, 36, 3, 5.285779))
sketch5.addConstraint(Sketcher.Constraint("DistanceY", 32, 3, 36, 3, 11.842481))
sketch5.addConstraint(Sketcher.Constraint("DistanceX", 36, 3, 37, 3, 3.68709))
sketch5.addConstraint(Sketcher.Constraint("DistanceX", 37, 3, 38, 3, 1.74699))
sketch5.addConstraint(Sketcher.Constraint("DistanceY", 38, 3, 36, 3, 20.583238))
sketch5.addConstraint(Sketcher.Constraint("DistanceX", 41, 3, 42, 3, 8.107711))
sketch5.addConstraint(Sketcher.Constraint("DistanceX", 40, 3, 42, 3, 17.000649))
sketch5.addConstraint(Sketcher.Constraint("DistanceX", 42, 3, 43, 3, 6.889959))
sketch5.addConstraint(Sketcher.Constraint("DistanceY", 43, 3, 42, 3, 8.43978))
sketch5.addConstraint(Sketcher.Constraint("DistanceY", 42, 3, 47, 3, 43.78164))
sketch5.addConstraint(Sketcher.Constraint("DistanceX", 47, 3, 48, 3, 10.186769))
sketch5.addConstraint(Sketcher.Constraint("DistanceY", 50, 3, 51, 3, 5.285779))
sketch5.addConstraint(Sketcher.Constraint("DistanceX", 51, 3, 47, 3, 11.842481))
sketch5.addConstraint(Sketcher.Constraint("DistanceY", 51, 3, 52, 3, 3.68709))
sketch5.addConstraint(Sketcher.Constraint("DistanceY", 52, 3, 53, 3, 1.74699))
sketch5.addConstraint(Sketcher.Constraint("DistanceX", 51, 3, 53, 3, 20.583238))
pocket1 = body.newObject("PartDesign::Pocket", "Pocket")
pocket1.Profile = sketch5
pocket1.Length = Q("3.34 in")
pocket1.Reversed = True

doc.recompute()
